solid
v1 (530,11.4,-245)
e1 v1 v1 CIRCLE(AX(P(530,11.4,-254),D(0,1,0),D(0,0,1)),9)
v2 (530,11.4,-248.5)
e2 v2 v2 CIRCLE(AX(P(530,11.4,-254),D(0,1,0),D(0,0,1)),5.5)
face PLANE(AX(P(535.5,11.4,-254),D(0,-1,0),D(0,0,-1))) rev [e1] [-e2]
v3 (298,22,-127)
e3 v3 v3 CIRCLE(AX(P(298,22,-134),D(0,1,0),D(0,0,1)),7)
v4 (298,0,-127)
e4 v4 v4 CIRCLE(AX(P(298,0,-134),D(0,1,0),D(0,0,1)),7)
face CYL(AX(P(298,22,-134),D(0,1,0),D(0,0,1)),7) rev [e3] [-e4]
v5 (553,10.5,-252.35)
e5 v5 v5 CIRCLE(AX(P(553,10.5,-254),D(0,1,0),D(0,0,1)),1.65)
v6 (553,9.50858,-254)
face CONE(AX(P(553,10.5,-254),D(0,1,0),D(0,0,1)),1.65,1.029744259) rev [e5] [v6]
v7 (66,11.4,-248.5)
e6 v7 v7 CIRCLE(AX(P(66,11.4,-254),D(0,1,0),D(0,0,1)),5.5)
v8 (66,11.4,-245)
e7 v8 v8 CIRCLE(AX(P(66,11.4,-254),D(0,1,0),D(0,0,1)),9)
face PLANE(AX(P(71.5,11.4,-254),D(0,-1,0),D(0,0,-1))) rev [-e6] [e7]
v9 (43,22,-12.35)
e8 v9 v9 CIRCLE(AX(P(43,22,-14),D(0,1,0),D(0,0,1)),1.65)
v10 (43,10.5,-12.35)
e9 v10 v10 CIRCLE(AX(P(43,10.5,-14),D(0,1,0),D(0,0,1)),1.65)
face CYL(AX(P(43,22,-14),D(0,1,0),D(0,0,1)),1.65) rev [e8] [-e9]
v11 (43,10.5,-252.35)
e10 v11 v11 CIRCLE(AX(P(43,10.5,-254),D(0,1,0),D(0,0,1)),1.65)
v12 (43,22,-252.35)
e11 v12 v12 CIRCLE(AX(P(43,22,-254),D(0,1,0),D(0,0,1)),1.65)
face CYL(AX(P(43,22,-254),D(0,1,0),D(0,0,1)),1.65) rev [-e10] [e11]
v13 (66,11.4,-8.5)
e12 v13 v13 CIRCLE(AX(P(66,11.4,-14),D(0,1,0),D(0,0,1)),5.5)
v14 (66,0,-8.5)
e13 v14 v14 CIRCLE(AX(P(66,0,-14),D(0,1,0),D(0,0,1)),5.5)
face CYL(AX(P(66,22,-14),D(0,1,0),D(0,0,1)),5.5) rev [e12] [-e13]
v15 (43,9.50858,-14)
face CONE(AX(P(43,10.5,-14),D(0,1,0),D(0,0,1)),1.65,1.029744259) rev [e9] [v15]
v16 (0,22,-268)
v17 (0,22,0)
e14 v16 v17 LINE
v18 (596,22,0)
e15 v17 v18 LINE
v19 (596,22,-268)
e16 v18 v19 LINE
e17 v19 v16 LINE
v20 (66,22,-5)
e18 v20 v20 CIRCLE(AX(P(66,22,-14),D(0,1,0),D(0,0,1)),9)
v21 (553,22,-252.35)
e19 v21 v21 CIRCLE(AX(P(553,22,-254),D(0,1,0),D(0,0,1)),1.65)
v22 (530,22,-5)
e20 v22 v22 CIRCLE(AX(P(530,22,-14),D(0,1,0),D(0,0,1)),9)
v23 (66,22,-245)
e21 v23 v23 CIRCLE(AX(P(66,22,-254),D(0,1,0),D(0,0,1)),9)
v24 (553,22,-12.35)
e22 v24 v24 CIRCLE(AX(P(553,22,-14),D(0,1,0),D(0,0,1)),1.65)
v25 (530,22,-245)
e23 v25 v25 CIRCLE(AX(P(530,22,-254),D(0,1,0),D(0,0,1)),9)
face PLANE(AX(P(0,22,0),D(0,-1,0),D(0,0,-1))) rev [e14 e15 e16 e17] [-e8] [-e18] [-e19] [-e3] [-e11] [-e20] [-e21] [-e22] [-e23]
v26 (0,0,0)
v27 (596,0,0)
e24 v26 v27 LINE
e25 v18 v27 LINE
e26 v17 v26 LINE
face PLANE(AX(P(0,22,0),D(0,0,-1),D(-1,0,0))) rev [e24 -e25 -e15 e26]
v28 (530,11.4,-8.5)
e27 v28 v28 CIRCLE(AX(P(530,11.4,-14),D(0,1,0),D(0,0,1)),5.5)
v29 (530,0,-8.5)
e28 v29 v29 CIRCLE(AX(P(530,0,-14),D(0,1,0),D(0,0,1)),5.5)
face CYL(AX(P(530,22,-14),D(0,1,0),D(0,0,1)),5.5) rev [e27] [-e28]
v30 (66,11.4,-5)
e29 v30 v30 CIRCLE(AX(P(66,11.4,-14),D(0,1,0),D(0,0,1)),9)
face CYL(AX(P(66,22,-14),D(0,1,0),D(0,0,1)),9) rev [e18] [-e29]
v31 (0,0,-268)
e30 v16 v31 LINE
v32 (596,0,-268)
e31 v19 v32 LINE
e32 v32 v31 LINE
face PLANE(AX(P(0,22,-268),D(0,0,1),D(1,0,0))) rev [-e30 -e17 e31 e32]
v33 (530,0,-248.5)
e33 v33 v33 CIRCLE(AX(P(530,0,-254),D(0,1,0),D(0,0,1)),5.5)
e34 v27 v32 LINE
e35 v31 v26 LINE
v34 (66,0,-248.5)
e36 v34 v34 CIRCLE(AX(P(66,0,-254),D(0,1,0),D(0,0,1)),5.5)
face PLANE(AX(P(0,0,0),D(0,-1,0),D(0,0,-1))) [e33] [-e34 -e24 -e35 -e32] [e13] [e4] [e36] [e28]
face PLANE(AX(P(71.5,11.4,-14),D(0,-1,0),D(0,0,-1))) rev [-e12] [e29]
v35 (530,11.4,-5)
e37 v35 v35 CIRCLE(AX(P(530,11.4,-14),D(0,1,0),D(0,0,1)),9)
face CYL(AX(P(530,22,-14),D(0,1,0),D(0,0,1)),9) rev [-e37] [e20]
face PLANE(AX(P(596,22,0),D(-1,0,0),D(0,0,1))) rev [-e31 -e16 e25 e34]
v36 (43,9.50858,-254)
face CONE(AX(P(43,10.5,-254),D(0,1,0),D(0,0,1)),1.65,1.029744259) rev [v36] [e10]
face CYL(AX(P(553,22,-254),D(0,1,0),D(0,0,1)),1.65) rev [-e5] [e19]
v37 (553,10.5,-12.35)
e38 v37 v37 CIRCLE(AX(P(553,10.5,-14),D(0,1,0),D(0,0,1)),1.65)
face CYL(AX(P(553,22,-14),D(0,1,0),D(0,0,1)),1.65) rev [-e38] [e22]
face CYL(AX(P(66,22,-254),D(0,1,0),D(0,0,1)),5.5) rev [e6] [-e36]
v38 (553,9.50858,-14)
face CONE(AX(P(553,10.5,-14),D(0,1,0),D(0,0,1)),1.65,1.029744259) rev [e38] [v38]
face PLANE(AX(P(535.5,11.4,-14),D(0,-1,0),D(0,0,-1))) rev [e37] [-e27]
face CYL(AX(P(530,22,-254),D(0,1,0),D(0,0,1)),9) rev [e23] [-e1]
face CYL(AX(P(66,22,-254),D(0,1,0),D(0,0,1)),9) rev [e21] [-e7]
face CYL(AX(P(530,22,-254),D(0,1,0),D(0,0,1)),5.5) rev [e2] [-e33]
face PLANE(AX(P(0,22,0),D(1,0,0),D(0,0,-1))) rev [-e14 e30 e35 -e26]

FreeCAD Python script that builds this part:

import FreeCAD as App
import Part
import Sketcher
Q = App.Units.Quantity

doc = App.newDocument("Part")
params = doc.addObject("Spreadsheet::Sheet", "Params")
for row, (alias, value) in enumerate([
    ("sketch1_width", "596 mm"),
    ("sketch1_height", "268 mm"),
    ("pad1_length", "22 mm"),
    ("sketch2_diameter", "11 mm"),
    ("hole_diameter", "11 mm"),
    ("hole_cbore_diameter", "18 mm"),
    ("hole_cbore_depth", "10.6 mm"),
    ("sketch3_diameter", "3.3 mm"),
    ("hole2_diameter", "3.3 mm"),
    ("hole2_depth", "11.5 mm"),
    ("sketch4_diameter", "14 mm"),
    ("hole3_diameter", "14 mm"),
], start=1):
    params.set(f"A{row}", alias)
    params.set(f"B{row}", "=" + value)
    params.setAlias(f"B{row}", alias)

body = doc.addObject("PartDesign::Body", "Body")

sketch1 = body.newObject("Sketcher::SketchObject", "Sketch")
sketch1.AttachmentSupport = (doc.getObject("XZ_Plane"), [""])
sketch1.MapMode = "FlatFace"
sketch1.addGeometry([
    Part.LineSegment(App.Vector(0, -268, 0), App.Vector(0, 0, 0)),
    Part.LineSegment(App.Vector(0, 0, 0), App.Vector(596, 0, 0)),
    Part.LineSegment(App.Vector(596, 0, 0), App.Vector(596, -268, 0)),
    Part.LineSegment(App.Vector(596, -268, 0), App.Vector(0, -268, 0)),
], False)
sketch1.addConstraint([
    Sketcher.Constraint("Coincident", 0, 2, 1, 1),
    Sketcher.Constraint("Coincident", 1, 2, 2, 1),
    Sketcher.Constraint("Coincident", 2, 2, 3, 1),
    Sketcher.Constraint("Coincident", 3, 2, 0, 1),
    Sketcher.Constraint("Vertical", 0),
    Sketcher.Constraint("Horizontal", 1),
    Sketcher.Constraint("Vertical", 2),
    Sketcher.Constraint("Horizontal", 3),
    Sketcher.Constraint("Coincident", 0, 2, -1, 1),
    Sketcher.Constraint("DistanceX", 1, 1, 1, 2, Q("596 mm")),
    Sketcher.Constraint("DistanceY", 0, 1, 0, 2, Q("268 mm")),
])
sketch1.setExpression("Constraints[9]", "Params.sketch1_width")
sketch1.setExpression("Constraints[10]", "Params.sketch1_height")
pad1 = body.newObject("PartDesign::Pad", "Pad")
pad1.Profile = sketch1
pad1.setExpression("Length", "Params.pad1_length")
pad1.Reversed = True

sketch2 = body.newObject("Sketcher::SketchObject", "Sketch001")
sketch2.AttachmentSupport = (doc.getObject("XZ_Plane"), [""])
sketch2.MapMode = "FlatFace"
sketch2.AttachmentOffset = App.Placement(App.Vector(0, 0, -22), App.Rotation())
sketch2.addGeometry([
    Part.Circle(App.Vector(66, -254, 0), App.Vector(0, 0, 1), 6),
    Part.Circle(App.Vector(66, -14, 0), App.Vector(0, 0, 1), 6),
    Part.Circle(App.Vector(530, -14, 0), App.Vector(0, 0, 1), 6),
    Part.Circle(App.Vector(530, -254, 0), App.Vector(0, 0, 1), 6),
], False)
sketch2.addConstraint([
    Sketcher.Constraint("Equal", 0, 1),
    Sketcher.Constraint("Equal", 1, 2),
    Sketcher.Constraint("Equal", 2, 3),
    Sketcher.Constraint("Horizontal", 1, 3, 2, 3),
    Sketcher.Constraint("Horizontal", 0, 3, 3, 3),
    Sketcher.Constraint("Vertical", 0, 3, 1, 3),
    Sketcher.Constraint("Vertical", 2, 3, 3, 3),
    Sketcher.Constraint("Diameter", 0, Q("11 mm")),
    Sketcher.Constraint("DistanceX", -1, 1, 0, 3, Q("66 mm")),
    Sketcher.Constraint("DistanceY", 0, 3, -1, 1, Q("254 mm")),
    Sketcher.Constraint("DistanceY", 1, 3, -1, 1, Q("14 mm")),
    Sketcher.Constraint("DistanceX", -1, 1, 2, 3, Q("530 mm")),
])
sketch2.setExpression("Constraints[7]", "Params.sketch2_diameter")
doc.recompute()
hole = body.newObject("PartDesign::Hole", "Hole")
hole.Profile = sketch2
hole.ThreadType = "None"
hole.setExpression("Diameter", "Params.hole_diameter")
hole.DepthType = "ThroughAll"
hole.HoleCutType = "Counterbore"
hole.setExpression("HoleCutDiameter", "Params.hole_cbore_diameter")
hole.setExpression("HoleCutDepth", "Params.hole_cbore_depth")
hole.Reversed = True

sketch3 = body.newObject("Sketcher::SketchObject", "Sketch002")
sketch3.AttachmentSupport = (doc.getObject("XZ_Plane"), [""])
sketch3.MapMode = "FlatFace"
sketch3.AttachmentOffset = App.Placement(App.Vector(0, 0, -22), App.Rotation())
sketch3.addGeometry([
    Part.Circle(App.Vector(43, -14, 0), App.Vector(0, 0, 1), 1.6),
    Part.Circle(App.Vector(43, -254, 0), App.Vector(0, 0, 1), 1.6),
    Part.Circle(App.Vector(553, -254, 0), App.Vector(0, 0, 1), 1.6),
    Part.Circle(App.Vector(553, -14, 0), App.Vector(0, 0, 1), 1.6),
], False)
sketch3.addConstraint([
    Sketcher.Constraint("Equal", 0, 1),
    Sketcher.Constraint("Equal", 1, 2),
    Sketcher.Constraint("Equal", 2, 3),
    Sketcher.Constraint("Horizontal", 1, 3, 2, 3),
    Sketcher.Constraint("Horizontal", 0, 3, 3, 3),
    Sketcher.Constraint("Vertical", 0, 3, 1, 3),
    Sketcher.Constraint("Vertical", 2, 3, 3, 3),
    Sketcher.Constraint("Diameter", 0, Q("3.3 mm")),
    Sketcher.Constraint("DistanceX", -1, 1, 0, 3, Q("43 mm")),
    Sketcher.Constraint("DistanceY", 0, 3, -1, 1, Q("14 mm")),
    Sketcher.Constraint("DistanceY", 1, 3, -1, 1, Q("254 mm")),
    Sketcher.Constraint("DistanceX", -1, 1, 2, 3, Q("553 mm")),
])
sketch3.setExpression("Constraints[7]", "Params.sketch3_diameter")
doc.recompute()
hole2 = body.newObject("PartDesign::Hole", "Hole001")
hole2.Profile = sketch3
hole2.ThreadType = "None"
hole2.setExpression("Diameter", "Params.hole2_diameter")
hole2.DepthType = "Dimension"
hole2.setExpression("Depth", "Params.hole2_depth")
hole2.DrillPoint = "Angled"
hole2.DrillPointAngle = 118
hole2.Reversed = True

sketch4 = body.newObject("Sketcher::SketchObject", "Sketch003")
sketch4.AttachmentSupport = (doc.getObject("XZ_Plane"), [""])
sketch4.MapMode = "FlatFace"
sketch4.AttachmentOffset = App.Placement(App.Vector(0, 0, -22), App.Rotation())
sketch4.addGeometry(Part.Circle(App.Vector(298, -134, 0), App.Vector(0, 0, 1), 7), False)
sketch4.addConstraint([
    Sketcher.Constraint("Diameter", 0, Q("14 mm")),
    Sketcher.Constraint("DistanceX", -1, 1, 0, 3, Q("298 mm")),
    Sketcher.Constraint("DistanceY", 0, 3, -1, 1, Q("134 mm")),
])
sketch4.setExpression("Constraints[0]", "Params.sketch4_diameter")
doc.recompute()
hole3 = body.newObject("PartDesign::Hole", "Hole002")
hole3.Profile = sketch4
hole3.ThreadType = "None"
hole3.setExpression("Diameter", "Params.hole3_diameter")
hole3.DepthType = "ThroughAll"
hole3.Reversed = True

doc.recompute()
